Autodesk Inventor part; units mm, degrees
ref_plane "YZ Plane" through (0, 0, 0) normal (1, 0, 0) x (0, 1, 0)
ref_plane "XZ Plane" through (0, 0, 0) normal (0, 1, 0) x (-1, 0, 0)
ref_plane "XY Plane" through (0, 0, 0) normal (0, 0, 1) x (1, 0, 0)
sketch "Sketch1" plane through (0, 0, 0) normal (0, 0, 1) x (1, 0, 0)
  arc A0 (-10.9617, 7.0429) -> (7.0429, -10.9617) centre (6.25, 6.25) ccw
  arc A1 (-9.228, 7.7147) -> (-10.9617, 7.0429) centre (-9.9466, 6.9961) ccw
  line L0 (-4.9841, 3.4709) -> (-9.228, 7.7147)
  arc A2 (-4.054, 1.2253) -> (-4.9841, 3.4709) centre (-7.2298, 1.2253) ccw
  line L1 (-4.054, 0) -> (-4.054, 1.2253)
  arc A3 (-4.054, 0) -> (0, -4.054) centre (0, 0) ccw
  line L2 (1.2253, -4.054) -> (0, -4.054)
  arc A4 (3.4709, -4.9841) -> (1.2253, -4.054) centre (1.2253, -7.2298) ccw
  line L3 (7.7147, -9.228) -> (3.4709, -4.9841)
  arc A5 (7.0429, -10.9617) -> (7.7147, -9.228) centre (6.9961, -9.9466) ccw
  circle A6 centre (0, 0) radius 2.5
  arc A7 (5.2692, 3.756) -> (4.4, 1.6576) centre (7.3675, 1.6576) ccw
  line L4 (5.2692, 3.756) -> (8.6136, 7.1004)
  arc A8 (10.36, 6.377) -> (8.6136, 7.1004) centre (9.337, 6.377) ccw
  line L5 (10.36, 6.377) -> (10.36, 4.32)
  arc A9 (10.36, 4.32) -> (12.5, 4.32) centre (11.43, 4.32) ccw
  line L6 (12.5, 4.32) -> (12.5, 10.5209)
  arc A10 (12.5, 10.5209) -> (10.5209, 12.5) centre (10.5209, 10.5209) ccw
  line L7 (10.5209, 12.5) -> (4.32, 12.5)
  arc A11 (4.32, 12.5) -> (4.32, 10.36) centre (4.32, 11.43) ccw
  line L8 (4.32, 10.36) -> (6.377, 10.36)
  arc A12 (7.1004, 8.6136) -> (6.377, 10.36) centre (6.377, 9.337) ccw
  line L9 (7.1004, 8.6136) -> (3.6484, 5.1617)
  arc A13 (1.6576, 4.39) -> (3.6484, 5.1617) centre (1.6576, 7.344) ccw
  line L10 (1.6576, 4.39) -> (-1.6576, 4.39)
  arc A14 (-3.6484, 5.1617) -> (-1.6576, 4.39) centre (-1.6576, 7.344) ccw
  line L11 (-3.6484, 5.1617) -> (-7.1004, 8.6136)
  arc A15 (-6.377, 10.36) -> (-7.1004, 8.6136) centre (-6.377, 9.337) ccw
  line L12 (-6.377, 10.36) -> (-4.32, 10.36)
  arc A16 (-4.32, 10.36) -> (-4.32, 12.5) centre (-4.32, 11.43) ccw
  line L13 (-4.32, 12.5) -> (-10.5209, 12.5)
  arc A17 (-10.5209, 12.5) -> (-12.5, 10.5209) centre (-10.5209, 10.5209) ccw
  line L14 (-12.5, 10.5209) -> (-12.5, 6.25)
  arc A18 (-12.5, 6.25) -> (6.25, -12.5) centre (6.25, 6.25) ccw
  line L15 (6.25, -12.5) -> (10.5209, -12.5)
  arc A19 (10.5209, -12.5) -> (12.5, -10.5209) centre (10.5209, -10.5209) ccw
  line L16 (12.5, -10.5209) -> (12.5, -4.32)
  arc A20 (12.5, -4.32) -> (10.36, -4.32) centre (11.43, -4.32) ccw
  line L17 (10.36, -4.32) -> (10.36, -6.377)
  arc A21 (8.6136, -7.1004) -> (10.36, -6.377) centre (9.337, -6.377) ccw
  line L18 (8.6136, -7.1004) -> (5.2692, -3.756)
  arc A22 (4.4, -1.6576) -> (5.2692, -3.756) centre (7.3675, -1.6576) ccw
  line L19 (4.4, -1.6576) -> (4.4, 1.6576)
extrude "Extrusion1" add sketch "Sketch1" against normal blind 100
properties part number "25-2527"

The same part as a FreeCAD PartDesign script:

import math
import FreeCAD as App
import Part
import Sketcher
from FreeCAD import Vector

doc = App.newDocument("Part")
body = doc.addObject("PartDesign::Body", "Body")

sketch1 = body.newObject("Sketcher::SketchObject", "Sketch")
sketch1.AttachmentSupport = (doc.getObject("XY_Plane"), [""])
sketch1.MapMode = "FlatFace"
sketch1.addGeometry([
    Part.ArcOfCircle(Part.Circle(Vector(7.4, 1.7, 0), Vector(0, 0, 1), 3), math.radians(135), math.radians(180)),
    Part.LineSegment(Vector(5.3, 3.8, 0), Vector(8.6, 7.1, 0)),
    Part.ArcOfCircle(Part.Circle(Vector(9.3, 6.4, 0), Vector(0, 0, 1), 1), math.radians(0), math.radians(135)),
    Part.LineSegment(Vector(10.4, 6.4, 0), Vector(10.4, 4.3, 0)),
    Part.ArcOfCircle(Part.Circle(Vector(11.4, 4.3, 0), Vector(0, 0, 1), 1.1), math.radians(180), math.radians(360)),
    Part.LineSegment(Vector(12.5, 4.3, 0), Vector(12.5, 10.5, 0)),
    Part.ArcOfCircle(Part.Circle(Vector(10.5, 10.5, 0), Vector(0, 0, 1), 2), math.radians(0), math.radians(90)),
    Part.LineSegment(Vector(10.5, 12.5, 0), Vector(4.3, 12.5, 0)),
    Part.ArcOfCircle(Part.Circle(Vector(4.3, 11.4, 0), Vector(0, 0, 1), 1.1), math.radians(90), math.radians(270)),
    Part.LineSegment(Vector(4.3, 10.4, 0), Vector(6.4, 10.4, 0)),
    Part.ArcOfCircle(Part.Circle(Vector(6.4, 9.3, 0), Vector(0, 0, 1), 1), math.radians(-45), math.radians(90)),
    Part.LineSegment(Vector(7.1, 8.6, 0), Vector(3.6, 5.2, 0)),
    Part.ArcOfCircle(Part.Circle(Vector(1.7, 7.3, 0), Vector(0, 0, 1), 3), math.radians(-90), math.radians(-48)),
    Part.LineSegment(Vector(1.7, 4.4, 0), Vector(-1.7, 4.4, 0)),
    Part.ArcOfCircle(Part.Circle(Vector(-1.7, 7.3, 0), Vector(0, 0, 1), 3), math.radians(-132), math.radians(-90)),
    Part.LineSegment(Vector(-3.6, 5.2, 0), Vector(-7.1, 8.6, 0)),
    Part.ArcOfCircle(Part.Circle(Vector(-6.4, 9.3, 0), Vector(0, 0, 1), 1), math.radians(90), math.radians(225)),
    Part.LineSegment(Vector(-6.4, 10.4, 0), Vector(-4.3, 10.4, 0)),
    Part.ArcOfCircle(Part.Circle(Vector(-4.3, 11.4, 0), Vector(0, 0, 1), 1.1), math.radians(-90), math.radians(90)),
    Part.LineSegment(Vector(-4.3, 12.5, 0), Vector(-10.5, 12.5, 0)),
    Part.ArcOfCircle(Part.Circle(Vector(-10.5, 10.5, 0), Vector(0, 0, 1), 2), math.radians(90), math.radians(180)),
    Part.LineSegment(Vector(-12.5, 10.5, 0), Vector(-12.5, 6.2, 0)),
    Part.ArcOfCircle(Part.Circle(Vector(6.2, 6.2, 0), Vector(0, 0, 1), 18.8), math.radians(180), math.radians(270)),
    Part.LineSegment(Vector(6.2, -12.5, 0), Vector(10.5, -12.5, 0)),
    Part.ArcOfCircle(Part.Circle(Vector(10.5, -10.5, 0), Vector(0, 0, 1), 2), math.radians(-90), math.radians(0)),
    Part.LineSegment(Vector(12.5, -10.5, 0), Vector(12.5, -4.3, 0)),
    Part.ArcOfCircle(Part.Circle(Vector(11.4, -4.3, 0), Vector(0, 0, 1), 1.1), math.radians(0), math.radians(180)),
    Part.LineSegment(Vector(10.4, -4.3, 0), Vector(10.4, -6.4, 0)),
    Part.ArcOfCircle(Part.Circle(Vector(9.3, -6.4, 0), Vector(0, 0, 1), 1), math.radians(-135), math.radians(0)),
    Part.LineSegment(Vector(8.6, -7.1, 0), Vector(5.3, -3.8, 0)),
    Part.ArcOfCircle(Part.Circle(Vector(7.4, -1.7, 0), Vector(0, 0, 1), 3), math.radians(180), math.radians(225)),
    Part.LineSegment(Vector(4.4, -1.7, 0), Vector(4.4, 1.7, 0)),
    Part.ArcOfCircle(Part.Circle(Vector(6.2, 6.2, 0), Vector(0, 0, 1), 17.2), math.radians(177), math.radians(273)),
    Part.ArcOfCircle(Part.Circle(Vector(-9.9, 7, 0), Vector(0, 0, 1), 1), math.radians(45), math.radians(177)),
    Part.LineSegment(Vector(-9.2, 7.7, 0), Vector(-5, 3.5, 0)),
    Part.ArcOfCircle(Part.Circle(Vector(-7.2, 1.2, 0), Vector(0, 0, 1), 3.2), math.radians(0), math.radians(45)),
    Part.LineSegment(Vector(-4.1, 1.2, 0), Vector(-4.1, 0, 0)),
    Part.ArcOfCircle(Part.Circle(Vector(0, 0, 0), Vector(0, 0, 1), 4.1), math.radians(180), math.radians(270)),
    Part.LineSegment(Vector(0, -4.1, 0), Vector(1.2, -4.1, 0)),
    Part.ArcOfCircle(Part.Circle(Vector(1.2, -7.2, 0), Vector(0, 0, 1), 3.2), math.radians(45), math.radians(90)),
    Part.LineSegment(Vector(3.5, -5, 0), Vector(7.7, -9.2, 0)),
    Part.ArcOfCircle(Part.Circle(Vector(7, -9.9, 0), Vector(0, 0, 1), 1), math.radians(-87), math.radians(45)),
    Part.Circle(Vector(0, 0, 0), Vector(0, 0, 1), 2.5),
], False)
sketch1.addConstraint([
    Sketcher.Constraint("Tangent", 0, 1, 1, 1),
    Sketcher.Constraint("Tangent", 1, 2, 2, 2),
    Sketcher.Constraint("Tangent", 2, 1, 3, 1),
    Sketcher.Constraint("Tangent", 3, 2, 4, 1),
    Sketcher.Constraint("Tangent", 4, 2, 5, 1),
    Sketcher.Constraint("Tangent", 5, 2, 6, 1),
    Sketcher.Constraint("Tangent", 6, 2, 7, 1),
    Sketcher.Constraint("Tangent", 7, 2, 8, 1),
    Sketcher.Constraint("Tangent", 8, 2, 9, 1),
    Sketcher.Constraint("Tangent", 9, 2, 10, 2),
    Sketcher.Constraint("Tangent", 10, 1, 11, 1),
    Sketcher.Constraint("Coincident", 11, 2, 12, 2),
    Sketcher.Constraint("Tangent", 12, 1, 13, 1),
    Sketcher.Constraint("Tangent", 13, 2, 14, 2),
    Sketcher.Constraint("Coincident", 14, 1, 15, 1),
    Sketcher.Constraint("Tangent", 15, 2, 16, 2),
    Sketcher.Constraint("Tangent", 16, 1, 17, 1),
    Sketcher.Constraint("Tangent", 17, 2, 18, 1),
    Sketcher.Constraint("Tangent", 18, 2, 19, 1),
    Sketcher.Constraint("Tangent", 19, 2, 20, 1),
    Sketcher.Constraint("Tangent", 20, 2, 21, 1),
    Sketcher.Constraint("Tangent", 21, 2, 22, 1),
    Sketcher.Constraint("Tangent", 22, 2, 23, 1),
    Sketcher.Constraint("Tangent", 23, 2, 24, 1),
    Sketcher.Constraint("Tangent", 24, 2, 25, 1),
    Sketcher.Constraint("Tangent", 25, 2, 26, 1),
    Sketcher.Constraint("Tangent", 26, 2, 27, 1),
    Sketcher.Constraint("Tangent", 27, 2, 28, 2),
    Sketcher.Constraint("Tangent", 28, 1, 29, 1),
    Sketcher.Constraint("Tangent", 29, 2, 30, 2),
    Sketcher.Constraint("Tangent", 30, 1, 31, 1),
    Sketcher.Constraint("Tangent", 31, 2, 0, 2),
    Sketcher.Constraint("Tangent", 32, 1, 33, 2),
    Sketcher.Constraint("Tangent", 33, 1, 34, 1),
    Sketcher.Constraint("Tangent", 34, 2, 35, 2),
    Sketcher.Constraint("Tangent", 35, 1, 36, 1),
    Sketcher.Constraint("Tangent", 36, 2, 37, 1),
    Sketcher.Constraint("Tangent", 37, 2, 38, 1),
    Sketcher.Constraint("Tangent", 38, 2, 39, 2),
    Sketcher.Constraint("Tangent", 39, 1, 40, 1),
    Sketcher.Constraint("Tangent", 40, 2, 41, 2),
    Sketcher.Constraint("Tangent", 41, 1, 32, 2),
    Sketcher.Constraint("Vertical", 3),
    Sketcher.Constraint("Vertical", 5),
    Sketcher.Constraint("Horizontal", 7),
    Sketcher.Constraint("Horizontal", 9),
    Sketcher.Constraint("Horizontal", 13),
    Sketcher.Constraint("Horizontal", 17),
    Sketcher.Constraint("Horizontal", 19),
    Sketcher.Constraint("Vertical", 21),
    Sketcher.Constraint("Horizontal", 23),
    Sketcher.Constraint("Vertical", 25),
    Sketcher.Constraint("Vertical", 27),
    Sketcher.Constraint("Vertical", 31),
    Sketcher.Constraint("Vertical", 36),
    Sketcher.Constraint("Horizontal", 38),
    Sketcher.Constraint("Coincident", 37, 3, -1, 1),
    Sketcher.Constraint("Coincident", 42, 3, -1, 1),
    Sketcher.Constraint("Coincident", 32, 3, 22, 3),
    Sketcher.Constraint("Equal", 4, 8),
    Sketcher.Constraint("Equal", 2, 10),
    Sketcher.Constraint("Equal", 12, 14),
    Sketcher.Constraint("Equal", 10, 16),
    Sketcher.Constraint("Equal", 8, 18),
    Sketcher.Constraint("Equal", 6, 20),
    Sketcher.Constraint("Equal", 20, 24),
    Sketcher.Constraint("Equal", 18, 26),
    Sketcher.Constraint("Equal", 16, 28),
    Sketcher.Constraint("Equal", 0, 30),
    Sketcher.Constraint("Equal", 35, 39),
    Sketcher.Constraint("Equal", 33, 41),
    Sketcher.Constraint("Symmetric", 20, 3, 24, 3, -1, 1),
    Sketcher.Constraint("Symmetric", 10, 3, 16, 3, -2),
    Sketcher.Constraint("Symmetric", 11, 2, 14, 1, -2),
    Sketcher.Constraint("Symmetric", 4, 3, 26, 3, -1),
    Sketcher.Constraint("Symmetric", 1, 2, 28, 1, -1),
    Sketcher.Constraint("Parallel", 1, 11),
    Sketcher.Constraint("Perpendicular", 11, 15),
    Sketcher.Constraint("Parallel", 29, 34),
    Sketcher.Constraint("Parallel", 34, 40),
    Sketcher.Constraint("Equal", 9, 17),
    Sketcher.Constraint("Equal", 17, 3),
    Sketcher.Constraint("Equal", 19, 5),
    Sketcher.Constraint("Equal", 23, 21),
    Sketcher.Constraint("Equal", 13, 31),
    Sketcher.Constraint("Equal", 38, 36),
    Sketcher.Constraint("Diameter", 42, 5.0),
    Sketcher.Constraint("Radius", 4, 1.07),
    Sketcher.Constraint("Radius", 22, 18.75),
    Sketcher.Constraint("Radius", 32, 17.23),
    Sketcher.Constraint("Radius", 2, 1.023),
    Sketcher.Constraint("Radius", 6, 1.979),
    Sketcher.Constraint("Radius", 12, 2.954),
    Sketcher.Constraint("Radius", 37, 4.054),
    Sketcher.Constraint("DistanceX", -1, 1, 4, 2, 12.5),
    Sketcher.Constraint("DistanceX", -1, 1, 30, 1, 4.4),
    Sketcher.Constraint("Radius", 0, 2.9675),
    Sketcher.Constraint("Radius", 33, 1.0163),
    Sketcher.Constraint("Radius", 35, 3.1758),
    Sketcher.Constraint("DistanceX", 7, 2, 7, 1, 6.201),
    Sketcher.Constraint("DistanceX", 9, 1, 9, 2, 2.057),
    Sketcher.Constraint("DistanceY", -1, 1, 12, 1, 4.39),
    Sketcher.Constraint("DistanceX", 38, 1, 38, 2, 1.2253),
])
pad1 = body.newObject("PartDesign::Pad", "Pad")
pad1.Profile = sketch1
pad1.Length = 100
pad1.Reversed = True

doc.recompute()
